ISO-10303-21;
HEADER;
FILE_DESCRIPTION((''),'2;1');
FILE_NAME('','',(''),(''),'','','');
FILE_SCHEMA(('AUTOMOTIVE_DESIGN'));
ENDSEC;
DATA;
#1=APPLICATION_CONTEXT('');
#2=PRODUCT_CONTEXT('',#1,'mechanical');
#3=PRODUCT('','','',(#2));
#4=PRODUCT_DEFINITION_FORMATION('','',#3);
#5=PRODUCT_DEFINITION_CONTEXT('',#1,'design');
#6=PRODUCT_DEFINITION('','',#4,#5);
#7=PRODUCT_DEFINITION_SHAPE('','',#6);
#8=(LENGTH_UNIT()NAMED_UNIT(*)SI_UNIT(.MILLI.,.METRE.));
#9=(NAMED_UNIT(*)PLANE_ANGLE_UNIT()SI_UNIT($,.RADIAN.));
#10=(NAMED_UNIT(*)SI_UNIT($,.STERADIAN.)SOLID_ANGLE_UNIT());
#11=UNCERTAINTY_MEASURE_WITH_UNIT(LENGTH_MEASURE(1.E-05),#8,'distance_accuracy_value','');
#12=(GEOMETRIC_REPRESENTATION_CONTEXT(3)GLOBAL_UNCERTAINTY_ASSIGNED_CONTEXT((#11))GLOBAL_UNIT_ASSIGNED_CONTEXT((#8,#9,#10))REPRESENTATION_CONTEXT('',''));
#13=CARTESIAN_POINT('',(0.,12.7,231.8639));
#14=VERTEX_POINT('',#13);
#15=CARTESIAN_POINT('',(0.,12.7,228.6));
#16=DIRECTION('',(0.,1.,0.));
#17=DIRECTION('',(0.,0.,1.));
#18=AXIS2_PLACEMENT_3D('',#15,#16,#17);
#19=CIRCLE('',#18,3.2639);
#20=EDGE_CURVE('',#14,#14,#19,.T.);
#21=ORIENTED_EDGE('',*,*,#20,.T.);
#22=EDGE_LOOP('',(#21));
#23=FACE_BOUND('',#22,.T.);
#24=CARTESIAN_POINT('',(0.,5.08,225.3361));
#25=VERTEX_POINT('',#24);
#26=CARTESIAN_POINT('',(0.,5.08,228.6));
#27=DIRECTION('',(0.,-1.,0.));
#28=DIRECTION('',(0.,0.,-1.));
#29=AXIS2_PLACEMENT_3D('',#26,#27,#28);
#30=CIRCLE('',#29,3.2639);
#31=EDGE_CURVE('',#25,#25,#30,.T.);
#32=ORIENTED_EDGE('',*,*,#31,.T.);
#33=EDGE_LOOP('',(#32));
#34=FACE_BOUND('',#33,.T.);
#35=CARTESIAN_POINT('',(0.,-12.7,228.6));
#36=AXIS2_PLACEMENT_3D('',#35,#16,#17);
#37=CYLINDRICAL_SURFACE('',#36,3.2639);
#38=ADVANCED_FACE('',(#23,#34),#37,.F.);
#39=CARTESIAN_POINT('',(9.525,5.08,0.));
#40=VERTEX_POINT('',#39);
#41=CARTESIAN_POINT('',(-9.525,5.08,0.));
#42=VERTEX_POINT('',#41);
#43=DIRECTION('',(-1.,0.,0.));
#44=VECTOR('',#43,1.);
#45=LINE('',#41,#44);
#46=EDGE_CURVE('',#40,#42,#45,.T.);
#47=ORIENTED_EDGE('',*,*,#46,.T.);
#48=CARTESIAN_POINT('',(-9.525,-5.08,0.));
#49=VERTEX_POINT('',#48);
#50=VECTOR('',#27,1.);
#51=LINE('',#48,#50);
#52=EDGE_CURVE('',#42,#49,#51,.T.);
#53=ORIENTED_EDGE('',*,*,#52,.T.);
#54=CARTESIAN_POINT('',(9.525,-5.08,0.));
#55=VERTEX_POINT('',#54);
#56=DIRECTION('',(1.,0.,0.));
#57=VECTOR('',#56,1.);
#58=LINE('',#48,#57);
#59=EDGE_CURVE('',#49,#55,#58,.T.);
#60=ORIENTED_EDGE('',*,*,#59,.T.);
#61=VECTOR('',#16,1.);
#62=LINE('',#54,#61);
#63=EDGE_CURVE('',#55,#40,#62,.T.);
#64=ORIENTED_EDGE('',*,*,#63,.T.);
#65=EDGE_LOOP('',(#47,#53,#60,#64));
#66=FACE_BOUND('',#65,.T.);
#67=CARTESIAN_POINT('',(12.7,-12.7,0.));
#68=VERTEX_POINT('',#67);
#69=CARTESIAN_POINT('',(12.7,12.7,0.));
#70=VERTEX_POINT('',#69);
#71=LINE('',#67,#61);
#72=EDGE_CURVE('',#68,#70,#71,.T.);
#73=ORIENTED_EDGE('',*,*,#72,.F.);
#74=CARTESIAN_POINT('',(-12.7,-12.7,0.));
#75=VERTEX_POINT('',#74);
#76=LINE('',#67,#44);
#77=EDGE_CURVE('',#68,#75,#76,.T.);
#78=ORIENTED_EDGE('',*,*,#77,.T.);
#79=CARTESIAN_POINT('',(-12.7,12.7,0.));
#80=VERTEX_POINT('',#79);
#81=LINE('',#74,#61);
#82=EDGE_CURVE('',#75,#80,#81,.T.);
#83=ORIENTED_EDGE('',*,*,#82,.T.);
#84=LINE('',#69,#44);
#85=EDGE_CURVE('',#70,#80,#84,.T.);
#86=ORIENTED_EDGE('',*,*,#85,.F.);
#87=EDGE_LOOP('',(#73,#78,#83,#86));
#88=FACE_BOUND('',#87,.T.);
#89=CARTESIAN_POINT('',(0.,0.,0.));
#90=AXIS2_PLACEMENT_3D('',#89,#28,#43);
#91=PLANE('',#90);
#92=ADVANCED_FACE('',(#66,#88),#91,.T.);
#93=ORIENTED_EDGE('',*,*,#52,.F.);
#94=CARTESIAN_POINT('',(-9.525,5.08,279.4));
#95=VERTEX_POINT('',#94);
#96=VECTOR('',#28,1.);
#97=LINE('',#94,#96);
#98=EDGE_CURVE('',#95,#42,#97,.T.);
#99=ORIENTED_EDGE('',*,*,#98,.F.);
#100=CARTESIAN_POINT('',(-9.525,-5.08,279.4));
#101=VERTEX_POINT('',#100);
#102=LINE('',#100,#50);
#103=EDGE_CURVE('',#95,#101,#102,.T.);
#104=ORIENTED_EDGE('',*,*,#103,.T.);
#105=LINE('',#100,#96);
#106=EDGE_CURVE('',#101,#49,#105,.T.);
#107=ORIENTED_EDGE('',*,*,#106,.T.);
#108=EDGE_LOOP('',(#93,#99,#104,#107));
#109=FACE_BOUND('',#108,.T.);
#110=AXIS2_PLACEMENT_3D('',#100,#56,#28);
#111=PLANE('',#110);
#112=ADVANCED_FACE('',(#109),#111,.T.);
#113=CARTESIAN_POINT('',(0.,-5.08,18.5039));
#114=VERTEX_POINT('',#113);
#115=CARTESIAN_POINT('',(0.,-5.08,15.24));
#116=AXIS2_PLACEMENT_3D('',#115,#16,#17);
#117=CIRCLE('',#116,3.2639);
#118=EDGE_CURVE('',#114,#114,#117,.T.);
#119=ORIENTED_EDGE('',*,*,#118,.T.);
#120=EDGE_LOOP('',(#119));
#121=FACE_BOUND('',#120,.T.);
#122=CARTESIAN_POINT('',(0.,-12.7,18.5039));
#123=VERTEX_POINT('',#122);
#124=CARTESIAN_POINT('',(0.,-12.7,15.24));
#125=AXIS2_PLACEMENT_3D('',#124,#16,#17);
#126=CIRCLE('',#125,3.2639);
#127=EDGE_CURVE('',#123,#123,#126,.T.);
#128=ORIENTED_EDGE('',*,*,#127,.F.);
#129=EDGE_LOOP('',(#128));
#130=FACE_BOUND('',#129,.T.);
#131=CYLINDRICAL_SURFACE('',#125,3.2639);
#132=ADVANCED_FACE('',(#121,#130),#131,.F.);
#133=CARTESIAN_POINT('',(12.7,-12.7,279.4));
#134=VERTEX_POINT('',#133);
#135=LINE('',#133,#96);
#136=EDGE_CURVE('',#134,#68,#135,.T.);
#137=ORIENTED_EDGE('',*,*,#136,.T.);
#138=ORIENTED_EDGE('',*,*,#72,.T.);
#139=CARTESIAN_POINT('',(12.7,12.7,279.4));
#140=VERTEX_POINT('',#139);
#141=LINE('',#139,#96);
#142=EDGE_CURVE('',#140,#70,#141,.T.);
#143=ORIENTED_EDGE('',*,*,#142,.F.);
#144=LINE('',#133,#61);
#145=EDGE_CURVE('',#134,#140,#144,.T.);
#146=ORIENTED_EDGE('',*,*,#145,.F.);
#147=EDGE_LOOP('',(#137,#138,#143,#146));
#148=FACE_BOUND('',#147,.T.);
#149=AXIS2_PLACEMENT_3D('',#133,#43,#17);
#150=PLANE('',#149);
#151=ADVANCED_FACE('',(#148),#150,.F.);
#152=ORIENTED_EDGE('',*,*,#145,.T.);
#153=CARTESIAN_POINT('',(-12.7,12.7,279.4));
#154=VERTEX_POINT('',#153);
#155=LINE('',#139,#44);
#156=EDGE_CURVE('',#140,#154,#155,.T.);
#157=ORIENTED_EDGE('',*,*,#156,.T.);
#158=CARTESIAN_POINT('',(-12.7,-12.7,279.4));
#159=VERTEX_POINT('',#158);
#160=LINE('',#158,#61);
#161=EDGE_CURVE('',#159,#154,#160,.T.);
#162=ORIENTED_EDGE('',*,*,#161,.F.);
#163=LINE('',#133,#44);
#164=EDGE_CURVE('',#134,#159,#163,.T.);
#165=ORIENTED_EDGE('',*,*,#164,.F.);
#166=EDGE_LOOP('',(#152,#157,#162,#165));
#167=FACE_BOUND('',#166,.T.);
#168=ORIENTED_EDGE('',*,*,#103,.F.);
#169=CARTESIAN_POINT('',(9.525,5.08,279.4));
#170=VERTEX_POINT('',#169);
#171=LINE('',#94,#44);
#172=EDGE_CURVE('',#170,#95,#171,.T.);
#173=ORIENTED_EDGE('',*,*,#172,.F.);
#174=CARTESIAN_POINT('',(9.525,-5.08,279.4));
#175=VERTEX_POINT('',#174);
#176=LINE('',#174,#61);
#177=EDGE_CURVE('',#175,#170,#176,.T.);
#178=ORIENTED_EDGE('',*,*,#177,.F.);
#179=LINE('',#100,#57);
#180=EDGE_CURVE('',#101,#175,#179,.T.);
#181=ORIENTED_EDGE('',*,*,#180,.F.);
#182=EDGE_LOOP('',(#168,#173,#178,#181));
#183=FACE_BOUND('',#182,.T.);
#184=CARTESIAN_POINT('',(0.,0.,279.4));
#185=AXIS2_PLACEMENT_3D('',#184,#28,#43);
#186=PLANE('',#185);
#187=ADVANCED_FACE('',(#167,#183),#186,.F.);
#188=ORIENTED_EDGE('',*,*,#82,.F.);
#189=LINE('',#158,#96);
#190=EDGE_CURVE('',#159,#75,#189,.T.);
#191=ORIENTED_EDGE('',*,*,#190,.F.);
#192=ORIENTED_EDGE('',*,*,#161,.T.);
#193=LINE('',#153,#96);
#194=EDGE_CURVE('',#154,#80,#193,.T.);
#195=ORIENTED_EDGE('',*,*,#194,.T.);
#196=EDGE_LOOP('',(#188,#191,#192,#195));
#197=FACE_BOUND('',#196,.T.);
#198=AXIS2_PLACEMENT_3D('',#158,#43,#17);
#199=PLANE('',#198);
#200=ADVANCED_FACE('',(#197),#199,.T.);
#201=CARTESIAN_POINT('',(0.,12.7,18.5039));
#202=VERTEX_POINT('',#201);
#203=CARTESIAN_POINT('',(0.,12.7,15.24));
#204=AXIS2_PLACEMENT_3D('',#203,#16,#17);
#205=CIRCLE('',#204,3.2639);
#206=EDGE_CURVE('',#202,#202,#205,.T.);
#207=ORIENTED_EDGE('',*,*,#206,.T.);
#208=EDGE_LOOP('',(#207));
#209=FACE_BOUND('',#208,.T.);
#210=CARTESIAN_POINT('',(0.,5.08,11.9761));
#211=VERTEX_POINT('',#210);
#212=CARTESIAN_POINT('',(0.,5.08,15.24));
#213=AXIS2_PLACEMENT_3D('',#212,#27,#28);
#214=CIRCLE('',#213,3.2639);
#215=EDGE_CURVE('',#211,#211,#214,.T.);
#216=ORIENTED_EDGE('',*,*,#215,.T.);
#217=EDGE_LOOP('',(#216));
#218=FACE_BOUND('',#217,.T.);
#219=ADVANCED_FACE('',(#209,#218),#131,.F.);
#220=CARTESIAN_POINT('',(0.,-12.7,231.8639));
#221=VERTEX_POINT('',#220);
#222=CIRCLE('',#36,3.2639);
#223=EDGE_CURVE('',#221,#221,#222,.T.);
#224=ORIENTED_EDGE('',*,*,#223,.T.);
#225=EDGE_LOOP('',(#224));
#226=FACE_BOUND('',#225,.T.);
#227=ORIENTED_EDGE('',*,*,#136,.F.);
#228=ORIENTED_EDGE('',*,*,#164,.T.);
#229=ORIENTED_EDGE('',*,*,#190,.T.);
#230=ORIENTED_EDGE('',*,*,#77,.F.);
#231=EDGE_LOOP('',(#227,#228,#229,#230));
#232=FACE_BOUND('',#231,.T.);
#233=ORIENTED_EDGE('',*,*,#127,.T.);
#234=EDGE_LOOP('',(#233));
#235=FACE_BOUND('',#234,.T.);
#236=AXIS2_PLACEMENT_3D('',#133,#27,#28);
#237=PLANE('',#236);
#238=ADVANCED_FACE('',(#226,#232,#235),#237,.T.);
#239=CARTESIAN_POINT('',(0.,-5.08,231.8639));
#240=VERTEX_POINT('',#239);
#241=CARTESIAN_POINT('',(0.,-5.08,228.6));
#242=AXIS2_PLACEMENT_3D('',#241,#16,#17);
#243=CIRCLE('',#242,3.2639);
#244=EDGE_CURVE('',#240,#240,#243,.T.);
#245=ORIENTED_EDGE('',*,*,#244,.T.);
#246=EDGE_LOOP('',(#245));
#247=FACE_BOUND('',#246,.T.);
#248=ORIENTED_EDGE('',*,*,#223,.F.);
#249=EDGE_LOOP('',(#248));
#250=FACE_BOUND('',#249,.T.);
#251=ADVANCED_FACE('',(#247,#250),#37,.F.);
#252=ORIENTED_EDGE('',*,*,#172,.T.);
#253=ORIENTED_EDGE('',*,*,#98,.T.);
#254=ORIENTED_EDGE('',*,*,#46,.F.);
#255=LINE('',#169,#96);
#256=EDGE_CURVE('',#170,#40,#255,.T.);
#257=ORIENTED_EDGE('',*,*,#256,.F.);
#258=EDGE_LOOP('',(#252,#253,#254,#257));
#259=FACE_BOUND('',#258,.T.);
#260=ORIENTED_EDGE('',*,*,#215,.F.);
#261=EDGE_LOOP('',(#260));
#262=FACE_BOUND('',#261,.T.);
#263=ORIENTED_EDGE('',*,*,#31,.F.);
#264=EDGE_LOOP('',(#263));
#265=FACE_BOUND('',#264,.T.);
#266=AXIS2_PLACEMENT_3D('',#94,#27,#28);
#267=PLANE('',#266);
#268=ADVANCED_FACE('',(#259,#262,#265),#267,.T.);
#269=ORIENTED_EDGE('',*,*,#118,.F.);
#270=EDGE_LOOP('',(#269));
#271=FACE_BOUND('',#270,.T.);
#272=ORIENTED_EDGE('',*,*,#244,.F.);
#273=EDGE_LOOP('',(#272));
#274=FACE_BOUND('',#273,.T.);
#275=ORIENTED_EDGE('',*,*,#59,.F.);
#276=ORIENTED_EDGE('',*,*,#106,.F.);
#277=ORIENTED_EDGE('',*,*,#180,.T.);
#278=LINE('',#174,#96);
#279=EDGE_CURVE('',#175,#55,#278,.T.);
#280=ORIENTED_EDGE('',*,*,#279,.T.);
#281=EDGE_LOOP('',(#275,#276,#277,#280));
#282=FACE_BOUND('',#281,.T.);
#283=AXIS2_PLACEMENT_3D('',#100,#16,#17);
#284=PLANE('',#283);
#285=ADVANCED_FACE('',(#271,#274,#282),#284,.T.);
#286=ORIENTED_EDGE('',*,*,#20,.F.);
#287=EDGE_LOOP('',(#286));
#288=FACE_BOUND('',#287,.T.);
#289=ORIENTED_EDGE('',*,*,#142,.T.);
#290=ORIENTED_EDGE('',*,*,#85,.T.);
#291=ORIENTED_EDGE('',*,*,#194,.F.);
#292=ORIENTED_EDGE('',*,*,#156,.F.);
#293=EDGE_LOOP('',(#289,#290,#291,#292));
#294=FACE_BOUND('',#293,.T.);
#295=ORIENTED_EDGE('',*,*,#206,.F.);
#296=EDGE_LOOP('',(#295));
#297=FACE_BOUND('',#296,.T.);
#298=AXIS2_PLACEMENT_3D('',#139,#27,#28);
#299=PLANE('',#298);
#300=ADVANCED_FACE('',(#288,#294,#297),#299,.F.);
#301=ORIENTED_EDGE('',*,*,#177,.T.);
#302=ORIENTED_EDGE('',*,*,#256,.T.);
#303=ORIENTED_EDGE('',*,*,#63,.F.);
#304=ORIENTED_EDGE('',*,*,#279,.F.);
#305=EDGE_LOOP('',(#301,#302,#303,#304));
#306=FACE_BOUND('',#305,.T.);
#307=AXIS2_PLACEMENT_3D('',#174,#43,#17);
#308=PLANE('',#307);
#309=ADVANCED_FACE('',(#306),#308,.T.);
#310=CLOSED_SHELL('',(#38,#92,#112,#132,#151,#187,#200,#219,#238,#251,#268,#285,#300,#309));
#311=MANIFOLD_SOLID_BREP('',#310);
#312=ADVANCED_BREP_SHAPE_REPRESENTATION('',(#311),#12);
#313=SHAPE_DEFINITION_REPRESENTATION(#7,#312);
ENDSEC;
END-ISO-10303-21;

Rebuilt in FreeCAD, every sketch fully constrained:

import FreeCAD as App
import Part
import Sketcher
from FreeCAD import Vector
Q = App.Units.Quantity


def add_polygon(sketch, points):
    """Adds a closed chain of lines whose ends are joined by coincident constraints."""
    first, n = sketch.GeometryCount, len(points)
    for a, b in zip(points, points[1:] + points[:1]):
        sketch.addGeometry(Part.LineSegment(App.Vector(*a, 0), App.Vector(*b, 0)), False)
    for i in range(n):
        sketch.addConstraint(Sketcher.Constraint("Coincident", first + i, 2, first + (i + 1) % n, 1))

doc = App.newDocument("Part")
body = doc.addObject("PartDesign::Body", "Body")

sketch1 = body.newObject("Sketcher::SketchObject", "Sketch")
sketch1.AttachmentSupport = (doc.getObject("XY_Plane"), [""])
sketch1.MapMode = "FlatFace"
add_polygon(sketch1, [(-13, 13), (-13, -13), (13, -13), (13, 13)])
sketch1.addConstraint([
    Sketcher.Constraint("Vertical", 0),
    Sketcher.Constraint("Horizontal", 1),
    Sketcher.Constraint("Vertical", 2),
    Sketcher.Constraint("Horizontal", 3),
    Sketcher.Constraint("Symmetric", 0, 2, 2, 2, -1, 1),
    Sketcher.Constraint("Equal", 3, 0),
    Sketcher.Constraint("DistanceX", 1, 1, 1, 2, Q("1 in")),
])
pad1 = body.newObject("PartDesign::Pad", "Pad")
pad1.Profile = sketch1
pad1.Length = Q("11 in")

sketch2 = body.newObject("Sketcher::SketchObject", "Sketch001")
sketch2.AttachmentSupport = (doc.getObject("XY_Plane"), [""])
sketch2.MapMode = "FlatFace"
add_polygon(sketch2, [(-10, 5), (-10, -5), (10, -5), (10, 5)])
sketch2.addConstraint([
    Sketcher.Constraint("Vertical", 0),
    Sketcher.Constraint("Horizontal", 1),
    Sketcher.Constraint("Vertical", 2),
    Sketcher.Constraint("Horizontal", 3),
    Sketcher.Constraint("Symmetric", 0, 2, 2, 2, -1, 1),
    Sketcher.Constraint("DistanceY", 0, 2, 0, 1, Q("0.4 in")),
    Sketcher.Constraint("DistanceX", 1, 1, 1, 2, Q("0.75 in")),
])
pocket1 = body.newObject("PartDesign::Pocket", "Pocket")
pocket1.Profile = sketch2
pocket1.Type = "ThroughAll"
pocket1.Reversed = True

sketch3 = body.newObject("Sketcher::SketchObject", "Sketch002")
sketch3.AttachmentSupport = (doc.getObject("XZ_Plane"), [""])
sketch3.MapMode = "FlatFace"
sketch3.AttachmentOffset = App.Placement(Vector(0, 0, -0.5 * 25.4), App.Rotation())
sketch3.addGeometry(Part.Circle(Vector(0, 15.2, 0), Vector(0, 0, 1), 3.3), False)
sketch3.addConstraint([
    Sketcher.Constraint("PointOnObject", 0, 3, -2),
    Sketcher.Constraint("Diameter", 0, Q("0.257 in")),
    Sketcher.Constraint("DistanceY", -1, 1, 0, 3, Q("0.6 in")),
])
pocket2 = body.newObject("PartDesign::Pocket", "Pocket001")
pocket2.Profile = sketch3
pocket2.Type = "ThroughAll"
pocket2.Reversed = True

sketch4 = body.newObject("Sketcher::SketchObject", "Sketch003")
sketch4.AttachmentSupport = (doc.getObject("XZ_Plane"), [""])
sketch4.MapMode = "FlatFace"
sketch4.AttachmentOffset = App.Placement(Vector(0, 0, -0.5 * 25.4), App.Rotation())
sketch4.addGeometry(Part.Circle(Vector(0, 228.6, 0), Vector(0, 0, 1), 3.3), False)
sketch4.addConstraint([
    Sketcher.Constraint("PointOnObject", 0, 3, -2),
    Sketcher.Constraint("Diameter", 0, Q("0.257 in")),
    Sketcher.Constraint("DistanceY", -1, 1, 0, 3, Q("9 in")),
])
pocket3 = body.newObject("PartDesign::Pocket", "Pocket002")
pocket3.Profile = sketch4
pocket3.Type = "ThroughAll"
pocket3.Reversed = True

doc.recompute()
